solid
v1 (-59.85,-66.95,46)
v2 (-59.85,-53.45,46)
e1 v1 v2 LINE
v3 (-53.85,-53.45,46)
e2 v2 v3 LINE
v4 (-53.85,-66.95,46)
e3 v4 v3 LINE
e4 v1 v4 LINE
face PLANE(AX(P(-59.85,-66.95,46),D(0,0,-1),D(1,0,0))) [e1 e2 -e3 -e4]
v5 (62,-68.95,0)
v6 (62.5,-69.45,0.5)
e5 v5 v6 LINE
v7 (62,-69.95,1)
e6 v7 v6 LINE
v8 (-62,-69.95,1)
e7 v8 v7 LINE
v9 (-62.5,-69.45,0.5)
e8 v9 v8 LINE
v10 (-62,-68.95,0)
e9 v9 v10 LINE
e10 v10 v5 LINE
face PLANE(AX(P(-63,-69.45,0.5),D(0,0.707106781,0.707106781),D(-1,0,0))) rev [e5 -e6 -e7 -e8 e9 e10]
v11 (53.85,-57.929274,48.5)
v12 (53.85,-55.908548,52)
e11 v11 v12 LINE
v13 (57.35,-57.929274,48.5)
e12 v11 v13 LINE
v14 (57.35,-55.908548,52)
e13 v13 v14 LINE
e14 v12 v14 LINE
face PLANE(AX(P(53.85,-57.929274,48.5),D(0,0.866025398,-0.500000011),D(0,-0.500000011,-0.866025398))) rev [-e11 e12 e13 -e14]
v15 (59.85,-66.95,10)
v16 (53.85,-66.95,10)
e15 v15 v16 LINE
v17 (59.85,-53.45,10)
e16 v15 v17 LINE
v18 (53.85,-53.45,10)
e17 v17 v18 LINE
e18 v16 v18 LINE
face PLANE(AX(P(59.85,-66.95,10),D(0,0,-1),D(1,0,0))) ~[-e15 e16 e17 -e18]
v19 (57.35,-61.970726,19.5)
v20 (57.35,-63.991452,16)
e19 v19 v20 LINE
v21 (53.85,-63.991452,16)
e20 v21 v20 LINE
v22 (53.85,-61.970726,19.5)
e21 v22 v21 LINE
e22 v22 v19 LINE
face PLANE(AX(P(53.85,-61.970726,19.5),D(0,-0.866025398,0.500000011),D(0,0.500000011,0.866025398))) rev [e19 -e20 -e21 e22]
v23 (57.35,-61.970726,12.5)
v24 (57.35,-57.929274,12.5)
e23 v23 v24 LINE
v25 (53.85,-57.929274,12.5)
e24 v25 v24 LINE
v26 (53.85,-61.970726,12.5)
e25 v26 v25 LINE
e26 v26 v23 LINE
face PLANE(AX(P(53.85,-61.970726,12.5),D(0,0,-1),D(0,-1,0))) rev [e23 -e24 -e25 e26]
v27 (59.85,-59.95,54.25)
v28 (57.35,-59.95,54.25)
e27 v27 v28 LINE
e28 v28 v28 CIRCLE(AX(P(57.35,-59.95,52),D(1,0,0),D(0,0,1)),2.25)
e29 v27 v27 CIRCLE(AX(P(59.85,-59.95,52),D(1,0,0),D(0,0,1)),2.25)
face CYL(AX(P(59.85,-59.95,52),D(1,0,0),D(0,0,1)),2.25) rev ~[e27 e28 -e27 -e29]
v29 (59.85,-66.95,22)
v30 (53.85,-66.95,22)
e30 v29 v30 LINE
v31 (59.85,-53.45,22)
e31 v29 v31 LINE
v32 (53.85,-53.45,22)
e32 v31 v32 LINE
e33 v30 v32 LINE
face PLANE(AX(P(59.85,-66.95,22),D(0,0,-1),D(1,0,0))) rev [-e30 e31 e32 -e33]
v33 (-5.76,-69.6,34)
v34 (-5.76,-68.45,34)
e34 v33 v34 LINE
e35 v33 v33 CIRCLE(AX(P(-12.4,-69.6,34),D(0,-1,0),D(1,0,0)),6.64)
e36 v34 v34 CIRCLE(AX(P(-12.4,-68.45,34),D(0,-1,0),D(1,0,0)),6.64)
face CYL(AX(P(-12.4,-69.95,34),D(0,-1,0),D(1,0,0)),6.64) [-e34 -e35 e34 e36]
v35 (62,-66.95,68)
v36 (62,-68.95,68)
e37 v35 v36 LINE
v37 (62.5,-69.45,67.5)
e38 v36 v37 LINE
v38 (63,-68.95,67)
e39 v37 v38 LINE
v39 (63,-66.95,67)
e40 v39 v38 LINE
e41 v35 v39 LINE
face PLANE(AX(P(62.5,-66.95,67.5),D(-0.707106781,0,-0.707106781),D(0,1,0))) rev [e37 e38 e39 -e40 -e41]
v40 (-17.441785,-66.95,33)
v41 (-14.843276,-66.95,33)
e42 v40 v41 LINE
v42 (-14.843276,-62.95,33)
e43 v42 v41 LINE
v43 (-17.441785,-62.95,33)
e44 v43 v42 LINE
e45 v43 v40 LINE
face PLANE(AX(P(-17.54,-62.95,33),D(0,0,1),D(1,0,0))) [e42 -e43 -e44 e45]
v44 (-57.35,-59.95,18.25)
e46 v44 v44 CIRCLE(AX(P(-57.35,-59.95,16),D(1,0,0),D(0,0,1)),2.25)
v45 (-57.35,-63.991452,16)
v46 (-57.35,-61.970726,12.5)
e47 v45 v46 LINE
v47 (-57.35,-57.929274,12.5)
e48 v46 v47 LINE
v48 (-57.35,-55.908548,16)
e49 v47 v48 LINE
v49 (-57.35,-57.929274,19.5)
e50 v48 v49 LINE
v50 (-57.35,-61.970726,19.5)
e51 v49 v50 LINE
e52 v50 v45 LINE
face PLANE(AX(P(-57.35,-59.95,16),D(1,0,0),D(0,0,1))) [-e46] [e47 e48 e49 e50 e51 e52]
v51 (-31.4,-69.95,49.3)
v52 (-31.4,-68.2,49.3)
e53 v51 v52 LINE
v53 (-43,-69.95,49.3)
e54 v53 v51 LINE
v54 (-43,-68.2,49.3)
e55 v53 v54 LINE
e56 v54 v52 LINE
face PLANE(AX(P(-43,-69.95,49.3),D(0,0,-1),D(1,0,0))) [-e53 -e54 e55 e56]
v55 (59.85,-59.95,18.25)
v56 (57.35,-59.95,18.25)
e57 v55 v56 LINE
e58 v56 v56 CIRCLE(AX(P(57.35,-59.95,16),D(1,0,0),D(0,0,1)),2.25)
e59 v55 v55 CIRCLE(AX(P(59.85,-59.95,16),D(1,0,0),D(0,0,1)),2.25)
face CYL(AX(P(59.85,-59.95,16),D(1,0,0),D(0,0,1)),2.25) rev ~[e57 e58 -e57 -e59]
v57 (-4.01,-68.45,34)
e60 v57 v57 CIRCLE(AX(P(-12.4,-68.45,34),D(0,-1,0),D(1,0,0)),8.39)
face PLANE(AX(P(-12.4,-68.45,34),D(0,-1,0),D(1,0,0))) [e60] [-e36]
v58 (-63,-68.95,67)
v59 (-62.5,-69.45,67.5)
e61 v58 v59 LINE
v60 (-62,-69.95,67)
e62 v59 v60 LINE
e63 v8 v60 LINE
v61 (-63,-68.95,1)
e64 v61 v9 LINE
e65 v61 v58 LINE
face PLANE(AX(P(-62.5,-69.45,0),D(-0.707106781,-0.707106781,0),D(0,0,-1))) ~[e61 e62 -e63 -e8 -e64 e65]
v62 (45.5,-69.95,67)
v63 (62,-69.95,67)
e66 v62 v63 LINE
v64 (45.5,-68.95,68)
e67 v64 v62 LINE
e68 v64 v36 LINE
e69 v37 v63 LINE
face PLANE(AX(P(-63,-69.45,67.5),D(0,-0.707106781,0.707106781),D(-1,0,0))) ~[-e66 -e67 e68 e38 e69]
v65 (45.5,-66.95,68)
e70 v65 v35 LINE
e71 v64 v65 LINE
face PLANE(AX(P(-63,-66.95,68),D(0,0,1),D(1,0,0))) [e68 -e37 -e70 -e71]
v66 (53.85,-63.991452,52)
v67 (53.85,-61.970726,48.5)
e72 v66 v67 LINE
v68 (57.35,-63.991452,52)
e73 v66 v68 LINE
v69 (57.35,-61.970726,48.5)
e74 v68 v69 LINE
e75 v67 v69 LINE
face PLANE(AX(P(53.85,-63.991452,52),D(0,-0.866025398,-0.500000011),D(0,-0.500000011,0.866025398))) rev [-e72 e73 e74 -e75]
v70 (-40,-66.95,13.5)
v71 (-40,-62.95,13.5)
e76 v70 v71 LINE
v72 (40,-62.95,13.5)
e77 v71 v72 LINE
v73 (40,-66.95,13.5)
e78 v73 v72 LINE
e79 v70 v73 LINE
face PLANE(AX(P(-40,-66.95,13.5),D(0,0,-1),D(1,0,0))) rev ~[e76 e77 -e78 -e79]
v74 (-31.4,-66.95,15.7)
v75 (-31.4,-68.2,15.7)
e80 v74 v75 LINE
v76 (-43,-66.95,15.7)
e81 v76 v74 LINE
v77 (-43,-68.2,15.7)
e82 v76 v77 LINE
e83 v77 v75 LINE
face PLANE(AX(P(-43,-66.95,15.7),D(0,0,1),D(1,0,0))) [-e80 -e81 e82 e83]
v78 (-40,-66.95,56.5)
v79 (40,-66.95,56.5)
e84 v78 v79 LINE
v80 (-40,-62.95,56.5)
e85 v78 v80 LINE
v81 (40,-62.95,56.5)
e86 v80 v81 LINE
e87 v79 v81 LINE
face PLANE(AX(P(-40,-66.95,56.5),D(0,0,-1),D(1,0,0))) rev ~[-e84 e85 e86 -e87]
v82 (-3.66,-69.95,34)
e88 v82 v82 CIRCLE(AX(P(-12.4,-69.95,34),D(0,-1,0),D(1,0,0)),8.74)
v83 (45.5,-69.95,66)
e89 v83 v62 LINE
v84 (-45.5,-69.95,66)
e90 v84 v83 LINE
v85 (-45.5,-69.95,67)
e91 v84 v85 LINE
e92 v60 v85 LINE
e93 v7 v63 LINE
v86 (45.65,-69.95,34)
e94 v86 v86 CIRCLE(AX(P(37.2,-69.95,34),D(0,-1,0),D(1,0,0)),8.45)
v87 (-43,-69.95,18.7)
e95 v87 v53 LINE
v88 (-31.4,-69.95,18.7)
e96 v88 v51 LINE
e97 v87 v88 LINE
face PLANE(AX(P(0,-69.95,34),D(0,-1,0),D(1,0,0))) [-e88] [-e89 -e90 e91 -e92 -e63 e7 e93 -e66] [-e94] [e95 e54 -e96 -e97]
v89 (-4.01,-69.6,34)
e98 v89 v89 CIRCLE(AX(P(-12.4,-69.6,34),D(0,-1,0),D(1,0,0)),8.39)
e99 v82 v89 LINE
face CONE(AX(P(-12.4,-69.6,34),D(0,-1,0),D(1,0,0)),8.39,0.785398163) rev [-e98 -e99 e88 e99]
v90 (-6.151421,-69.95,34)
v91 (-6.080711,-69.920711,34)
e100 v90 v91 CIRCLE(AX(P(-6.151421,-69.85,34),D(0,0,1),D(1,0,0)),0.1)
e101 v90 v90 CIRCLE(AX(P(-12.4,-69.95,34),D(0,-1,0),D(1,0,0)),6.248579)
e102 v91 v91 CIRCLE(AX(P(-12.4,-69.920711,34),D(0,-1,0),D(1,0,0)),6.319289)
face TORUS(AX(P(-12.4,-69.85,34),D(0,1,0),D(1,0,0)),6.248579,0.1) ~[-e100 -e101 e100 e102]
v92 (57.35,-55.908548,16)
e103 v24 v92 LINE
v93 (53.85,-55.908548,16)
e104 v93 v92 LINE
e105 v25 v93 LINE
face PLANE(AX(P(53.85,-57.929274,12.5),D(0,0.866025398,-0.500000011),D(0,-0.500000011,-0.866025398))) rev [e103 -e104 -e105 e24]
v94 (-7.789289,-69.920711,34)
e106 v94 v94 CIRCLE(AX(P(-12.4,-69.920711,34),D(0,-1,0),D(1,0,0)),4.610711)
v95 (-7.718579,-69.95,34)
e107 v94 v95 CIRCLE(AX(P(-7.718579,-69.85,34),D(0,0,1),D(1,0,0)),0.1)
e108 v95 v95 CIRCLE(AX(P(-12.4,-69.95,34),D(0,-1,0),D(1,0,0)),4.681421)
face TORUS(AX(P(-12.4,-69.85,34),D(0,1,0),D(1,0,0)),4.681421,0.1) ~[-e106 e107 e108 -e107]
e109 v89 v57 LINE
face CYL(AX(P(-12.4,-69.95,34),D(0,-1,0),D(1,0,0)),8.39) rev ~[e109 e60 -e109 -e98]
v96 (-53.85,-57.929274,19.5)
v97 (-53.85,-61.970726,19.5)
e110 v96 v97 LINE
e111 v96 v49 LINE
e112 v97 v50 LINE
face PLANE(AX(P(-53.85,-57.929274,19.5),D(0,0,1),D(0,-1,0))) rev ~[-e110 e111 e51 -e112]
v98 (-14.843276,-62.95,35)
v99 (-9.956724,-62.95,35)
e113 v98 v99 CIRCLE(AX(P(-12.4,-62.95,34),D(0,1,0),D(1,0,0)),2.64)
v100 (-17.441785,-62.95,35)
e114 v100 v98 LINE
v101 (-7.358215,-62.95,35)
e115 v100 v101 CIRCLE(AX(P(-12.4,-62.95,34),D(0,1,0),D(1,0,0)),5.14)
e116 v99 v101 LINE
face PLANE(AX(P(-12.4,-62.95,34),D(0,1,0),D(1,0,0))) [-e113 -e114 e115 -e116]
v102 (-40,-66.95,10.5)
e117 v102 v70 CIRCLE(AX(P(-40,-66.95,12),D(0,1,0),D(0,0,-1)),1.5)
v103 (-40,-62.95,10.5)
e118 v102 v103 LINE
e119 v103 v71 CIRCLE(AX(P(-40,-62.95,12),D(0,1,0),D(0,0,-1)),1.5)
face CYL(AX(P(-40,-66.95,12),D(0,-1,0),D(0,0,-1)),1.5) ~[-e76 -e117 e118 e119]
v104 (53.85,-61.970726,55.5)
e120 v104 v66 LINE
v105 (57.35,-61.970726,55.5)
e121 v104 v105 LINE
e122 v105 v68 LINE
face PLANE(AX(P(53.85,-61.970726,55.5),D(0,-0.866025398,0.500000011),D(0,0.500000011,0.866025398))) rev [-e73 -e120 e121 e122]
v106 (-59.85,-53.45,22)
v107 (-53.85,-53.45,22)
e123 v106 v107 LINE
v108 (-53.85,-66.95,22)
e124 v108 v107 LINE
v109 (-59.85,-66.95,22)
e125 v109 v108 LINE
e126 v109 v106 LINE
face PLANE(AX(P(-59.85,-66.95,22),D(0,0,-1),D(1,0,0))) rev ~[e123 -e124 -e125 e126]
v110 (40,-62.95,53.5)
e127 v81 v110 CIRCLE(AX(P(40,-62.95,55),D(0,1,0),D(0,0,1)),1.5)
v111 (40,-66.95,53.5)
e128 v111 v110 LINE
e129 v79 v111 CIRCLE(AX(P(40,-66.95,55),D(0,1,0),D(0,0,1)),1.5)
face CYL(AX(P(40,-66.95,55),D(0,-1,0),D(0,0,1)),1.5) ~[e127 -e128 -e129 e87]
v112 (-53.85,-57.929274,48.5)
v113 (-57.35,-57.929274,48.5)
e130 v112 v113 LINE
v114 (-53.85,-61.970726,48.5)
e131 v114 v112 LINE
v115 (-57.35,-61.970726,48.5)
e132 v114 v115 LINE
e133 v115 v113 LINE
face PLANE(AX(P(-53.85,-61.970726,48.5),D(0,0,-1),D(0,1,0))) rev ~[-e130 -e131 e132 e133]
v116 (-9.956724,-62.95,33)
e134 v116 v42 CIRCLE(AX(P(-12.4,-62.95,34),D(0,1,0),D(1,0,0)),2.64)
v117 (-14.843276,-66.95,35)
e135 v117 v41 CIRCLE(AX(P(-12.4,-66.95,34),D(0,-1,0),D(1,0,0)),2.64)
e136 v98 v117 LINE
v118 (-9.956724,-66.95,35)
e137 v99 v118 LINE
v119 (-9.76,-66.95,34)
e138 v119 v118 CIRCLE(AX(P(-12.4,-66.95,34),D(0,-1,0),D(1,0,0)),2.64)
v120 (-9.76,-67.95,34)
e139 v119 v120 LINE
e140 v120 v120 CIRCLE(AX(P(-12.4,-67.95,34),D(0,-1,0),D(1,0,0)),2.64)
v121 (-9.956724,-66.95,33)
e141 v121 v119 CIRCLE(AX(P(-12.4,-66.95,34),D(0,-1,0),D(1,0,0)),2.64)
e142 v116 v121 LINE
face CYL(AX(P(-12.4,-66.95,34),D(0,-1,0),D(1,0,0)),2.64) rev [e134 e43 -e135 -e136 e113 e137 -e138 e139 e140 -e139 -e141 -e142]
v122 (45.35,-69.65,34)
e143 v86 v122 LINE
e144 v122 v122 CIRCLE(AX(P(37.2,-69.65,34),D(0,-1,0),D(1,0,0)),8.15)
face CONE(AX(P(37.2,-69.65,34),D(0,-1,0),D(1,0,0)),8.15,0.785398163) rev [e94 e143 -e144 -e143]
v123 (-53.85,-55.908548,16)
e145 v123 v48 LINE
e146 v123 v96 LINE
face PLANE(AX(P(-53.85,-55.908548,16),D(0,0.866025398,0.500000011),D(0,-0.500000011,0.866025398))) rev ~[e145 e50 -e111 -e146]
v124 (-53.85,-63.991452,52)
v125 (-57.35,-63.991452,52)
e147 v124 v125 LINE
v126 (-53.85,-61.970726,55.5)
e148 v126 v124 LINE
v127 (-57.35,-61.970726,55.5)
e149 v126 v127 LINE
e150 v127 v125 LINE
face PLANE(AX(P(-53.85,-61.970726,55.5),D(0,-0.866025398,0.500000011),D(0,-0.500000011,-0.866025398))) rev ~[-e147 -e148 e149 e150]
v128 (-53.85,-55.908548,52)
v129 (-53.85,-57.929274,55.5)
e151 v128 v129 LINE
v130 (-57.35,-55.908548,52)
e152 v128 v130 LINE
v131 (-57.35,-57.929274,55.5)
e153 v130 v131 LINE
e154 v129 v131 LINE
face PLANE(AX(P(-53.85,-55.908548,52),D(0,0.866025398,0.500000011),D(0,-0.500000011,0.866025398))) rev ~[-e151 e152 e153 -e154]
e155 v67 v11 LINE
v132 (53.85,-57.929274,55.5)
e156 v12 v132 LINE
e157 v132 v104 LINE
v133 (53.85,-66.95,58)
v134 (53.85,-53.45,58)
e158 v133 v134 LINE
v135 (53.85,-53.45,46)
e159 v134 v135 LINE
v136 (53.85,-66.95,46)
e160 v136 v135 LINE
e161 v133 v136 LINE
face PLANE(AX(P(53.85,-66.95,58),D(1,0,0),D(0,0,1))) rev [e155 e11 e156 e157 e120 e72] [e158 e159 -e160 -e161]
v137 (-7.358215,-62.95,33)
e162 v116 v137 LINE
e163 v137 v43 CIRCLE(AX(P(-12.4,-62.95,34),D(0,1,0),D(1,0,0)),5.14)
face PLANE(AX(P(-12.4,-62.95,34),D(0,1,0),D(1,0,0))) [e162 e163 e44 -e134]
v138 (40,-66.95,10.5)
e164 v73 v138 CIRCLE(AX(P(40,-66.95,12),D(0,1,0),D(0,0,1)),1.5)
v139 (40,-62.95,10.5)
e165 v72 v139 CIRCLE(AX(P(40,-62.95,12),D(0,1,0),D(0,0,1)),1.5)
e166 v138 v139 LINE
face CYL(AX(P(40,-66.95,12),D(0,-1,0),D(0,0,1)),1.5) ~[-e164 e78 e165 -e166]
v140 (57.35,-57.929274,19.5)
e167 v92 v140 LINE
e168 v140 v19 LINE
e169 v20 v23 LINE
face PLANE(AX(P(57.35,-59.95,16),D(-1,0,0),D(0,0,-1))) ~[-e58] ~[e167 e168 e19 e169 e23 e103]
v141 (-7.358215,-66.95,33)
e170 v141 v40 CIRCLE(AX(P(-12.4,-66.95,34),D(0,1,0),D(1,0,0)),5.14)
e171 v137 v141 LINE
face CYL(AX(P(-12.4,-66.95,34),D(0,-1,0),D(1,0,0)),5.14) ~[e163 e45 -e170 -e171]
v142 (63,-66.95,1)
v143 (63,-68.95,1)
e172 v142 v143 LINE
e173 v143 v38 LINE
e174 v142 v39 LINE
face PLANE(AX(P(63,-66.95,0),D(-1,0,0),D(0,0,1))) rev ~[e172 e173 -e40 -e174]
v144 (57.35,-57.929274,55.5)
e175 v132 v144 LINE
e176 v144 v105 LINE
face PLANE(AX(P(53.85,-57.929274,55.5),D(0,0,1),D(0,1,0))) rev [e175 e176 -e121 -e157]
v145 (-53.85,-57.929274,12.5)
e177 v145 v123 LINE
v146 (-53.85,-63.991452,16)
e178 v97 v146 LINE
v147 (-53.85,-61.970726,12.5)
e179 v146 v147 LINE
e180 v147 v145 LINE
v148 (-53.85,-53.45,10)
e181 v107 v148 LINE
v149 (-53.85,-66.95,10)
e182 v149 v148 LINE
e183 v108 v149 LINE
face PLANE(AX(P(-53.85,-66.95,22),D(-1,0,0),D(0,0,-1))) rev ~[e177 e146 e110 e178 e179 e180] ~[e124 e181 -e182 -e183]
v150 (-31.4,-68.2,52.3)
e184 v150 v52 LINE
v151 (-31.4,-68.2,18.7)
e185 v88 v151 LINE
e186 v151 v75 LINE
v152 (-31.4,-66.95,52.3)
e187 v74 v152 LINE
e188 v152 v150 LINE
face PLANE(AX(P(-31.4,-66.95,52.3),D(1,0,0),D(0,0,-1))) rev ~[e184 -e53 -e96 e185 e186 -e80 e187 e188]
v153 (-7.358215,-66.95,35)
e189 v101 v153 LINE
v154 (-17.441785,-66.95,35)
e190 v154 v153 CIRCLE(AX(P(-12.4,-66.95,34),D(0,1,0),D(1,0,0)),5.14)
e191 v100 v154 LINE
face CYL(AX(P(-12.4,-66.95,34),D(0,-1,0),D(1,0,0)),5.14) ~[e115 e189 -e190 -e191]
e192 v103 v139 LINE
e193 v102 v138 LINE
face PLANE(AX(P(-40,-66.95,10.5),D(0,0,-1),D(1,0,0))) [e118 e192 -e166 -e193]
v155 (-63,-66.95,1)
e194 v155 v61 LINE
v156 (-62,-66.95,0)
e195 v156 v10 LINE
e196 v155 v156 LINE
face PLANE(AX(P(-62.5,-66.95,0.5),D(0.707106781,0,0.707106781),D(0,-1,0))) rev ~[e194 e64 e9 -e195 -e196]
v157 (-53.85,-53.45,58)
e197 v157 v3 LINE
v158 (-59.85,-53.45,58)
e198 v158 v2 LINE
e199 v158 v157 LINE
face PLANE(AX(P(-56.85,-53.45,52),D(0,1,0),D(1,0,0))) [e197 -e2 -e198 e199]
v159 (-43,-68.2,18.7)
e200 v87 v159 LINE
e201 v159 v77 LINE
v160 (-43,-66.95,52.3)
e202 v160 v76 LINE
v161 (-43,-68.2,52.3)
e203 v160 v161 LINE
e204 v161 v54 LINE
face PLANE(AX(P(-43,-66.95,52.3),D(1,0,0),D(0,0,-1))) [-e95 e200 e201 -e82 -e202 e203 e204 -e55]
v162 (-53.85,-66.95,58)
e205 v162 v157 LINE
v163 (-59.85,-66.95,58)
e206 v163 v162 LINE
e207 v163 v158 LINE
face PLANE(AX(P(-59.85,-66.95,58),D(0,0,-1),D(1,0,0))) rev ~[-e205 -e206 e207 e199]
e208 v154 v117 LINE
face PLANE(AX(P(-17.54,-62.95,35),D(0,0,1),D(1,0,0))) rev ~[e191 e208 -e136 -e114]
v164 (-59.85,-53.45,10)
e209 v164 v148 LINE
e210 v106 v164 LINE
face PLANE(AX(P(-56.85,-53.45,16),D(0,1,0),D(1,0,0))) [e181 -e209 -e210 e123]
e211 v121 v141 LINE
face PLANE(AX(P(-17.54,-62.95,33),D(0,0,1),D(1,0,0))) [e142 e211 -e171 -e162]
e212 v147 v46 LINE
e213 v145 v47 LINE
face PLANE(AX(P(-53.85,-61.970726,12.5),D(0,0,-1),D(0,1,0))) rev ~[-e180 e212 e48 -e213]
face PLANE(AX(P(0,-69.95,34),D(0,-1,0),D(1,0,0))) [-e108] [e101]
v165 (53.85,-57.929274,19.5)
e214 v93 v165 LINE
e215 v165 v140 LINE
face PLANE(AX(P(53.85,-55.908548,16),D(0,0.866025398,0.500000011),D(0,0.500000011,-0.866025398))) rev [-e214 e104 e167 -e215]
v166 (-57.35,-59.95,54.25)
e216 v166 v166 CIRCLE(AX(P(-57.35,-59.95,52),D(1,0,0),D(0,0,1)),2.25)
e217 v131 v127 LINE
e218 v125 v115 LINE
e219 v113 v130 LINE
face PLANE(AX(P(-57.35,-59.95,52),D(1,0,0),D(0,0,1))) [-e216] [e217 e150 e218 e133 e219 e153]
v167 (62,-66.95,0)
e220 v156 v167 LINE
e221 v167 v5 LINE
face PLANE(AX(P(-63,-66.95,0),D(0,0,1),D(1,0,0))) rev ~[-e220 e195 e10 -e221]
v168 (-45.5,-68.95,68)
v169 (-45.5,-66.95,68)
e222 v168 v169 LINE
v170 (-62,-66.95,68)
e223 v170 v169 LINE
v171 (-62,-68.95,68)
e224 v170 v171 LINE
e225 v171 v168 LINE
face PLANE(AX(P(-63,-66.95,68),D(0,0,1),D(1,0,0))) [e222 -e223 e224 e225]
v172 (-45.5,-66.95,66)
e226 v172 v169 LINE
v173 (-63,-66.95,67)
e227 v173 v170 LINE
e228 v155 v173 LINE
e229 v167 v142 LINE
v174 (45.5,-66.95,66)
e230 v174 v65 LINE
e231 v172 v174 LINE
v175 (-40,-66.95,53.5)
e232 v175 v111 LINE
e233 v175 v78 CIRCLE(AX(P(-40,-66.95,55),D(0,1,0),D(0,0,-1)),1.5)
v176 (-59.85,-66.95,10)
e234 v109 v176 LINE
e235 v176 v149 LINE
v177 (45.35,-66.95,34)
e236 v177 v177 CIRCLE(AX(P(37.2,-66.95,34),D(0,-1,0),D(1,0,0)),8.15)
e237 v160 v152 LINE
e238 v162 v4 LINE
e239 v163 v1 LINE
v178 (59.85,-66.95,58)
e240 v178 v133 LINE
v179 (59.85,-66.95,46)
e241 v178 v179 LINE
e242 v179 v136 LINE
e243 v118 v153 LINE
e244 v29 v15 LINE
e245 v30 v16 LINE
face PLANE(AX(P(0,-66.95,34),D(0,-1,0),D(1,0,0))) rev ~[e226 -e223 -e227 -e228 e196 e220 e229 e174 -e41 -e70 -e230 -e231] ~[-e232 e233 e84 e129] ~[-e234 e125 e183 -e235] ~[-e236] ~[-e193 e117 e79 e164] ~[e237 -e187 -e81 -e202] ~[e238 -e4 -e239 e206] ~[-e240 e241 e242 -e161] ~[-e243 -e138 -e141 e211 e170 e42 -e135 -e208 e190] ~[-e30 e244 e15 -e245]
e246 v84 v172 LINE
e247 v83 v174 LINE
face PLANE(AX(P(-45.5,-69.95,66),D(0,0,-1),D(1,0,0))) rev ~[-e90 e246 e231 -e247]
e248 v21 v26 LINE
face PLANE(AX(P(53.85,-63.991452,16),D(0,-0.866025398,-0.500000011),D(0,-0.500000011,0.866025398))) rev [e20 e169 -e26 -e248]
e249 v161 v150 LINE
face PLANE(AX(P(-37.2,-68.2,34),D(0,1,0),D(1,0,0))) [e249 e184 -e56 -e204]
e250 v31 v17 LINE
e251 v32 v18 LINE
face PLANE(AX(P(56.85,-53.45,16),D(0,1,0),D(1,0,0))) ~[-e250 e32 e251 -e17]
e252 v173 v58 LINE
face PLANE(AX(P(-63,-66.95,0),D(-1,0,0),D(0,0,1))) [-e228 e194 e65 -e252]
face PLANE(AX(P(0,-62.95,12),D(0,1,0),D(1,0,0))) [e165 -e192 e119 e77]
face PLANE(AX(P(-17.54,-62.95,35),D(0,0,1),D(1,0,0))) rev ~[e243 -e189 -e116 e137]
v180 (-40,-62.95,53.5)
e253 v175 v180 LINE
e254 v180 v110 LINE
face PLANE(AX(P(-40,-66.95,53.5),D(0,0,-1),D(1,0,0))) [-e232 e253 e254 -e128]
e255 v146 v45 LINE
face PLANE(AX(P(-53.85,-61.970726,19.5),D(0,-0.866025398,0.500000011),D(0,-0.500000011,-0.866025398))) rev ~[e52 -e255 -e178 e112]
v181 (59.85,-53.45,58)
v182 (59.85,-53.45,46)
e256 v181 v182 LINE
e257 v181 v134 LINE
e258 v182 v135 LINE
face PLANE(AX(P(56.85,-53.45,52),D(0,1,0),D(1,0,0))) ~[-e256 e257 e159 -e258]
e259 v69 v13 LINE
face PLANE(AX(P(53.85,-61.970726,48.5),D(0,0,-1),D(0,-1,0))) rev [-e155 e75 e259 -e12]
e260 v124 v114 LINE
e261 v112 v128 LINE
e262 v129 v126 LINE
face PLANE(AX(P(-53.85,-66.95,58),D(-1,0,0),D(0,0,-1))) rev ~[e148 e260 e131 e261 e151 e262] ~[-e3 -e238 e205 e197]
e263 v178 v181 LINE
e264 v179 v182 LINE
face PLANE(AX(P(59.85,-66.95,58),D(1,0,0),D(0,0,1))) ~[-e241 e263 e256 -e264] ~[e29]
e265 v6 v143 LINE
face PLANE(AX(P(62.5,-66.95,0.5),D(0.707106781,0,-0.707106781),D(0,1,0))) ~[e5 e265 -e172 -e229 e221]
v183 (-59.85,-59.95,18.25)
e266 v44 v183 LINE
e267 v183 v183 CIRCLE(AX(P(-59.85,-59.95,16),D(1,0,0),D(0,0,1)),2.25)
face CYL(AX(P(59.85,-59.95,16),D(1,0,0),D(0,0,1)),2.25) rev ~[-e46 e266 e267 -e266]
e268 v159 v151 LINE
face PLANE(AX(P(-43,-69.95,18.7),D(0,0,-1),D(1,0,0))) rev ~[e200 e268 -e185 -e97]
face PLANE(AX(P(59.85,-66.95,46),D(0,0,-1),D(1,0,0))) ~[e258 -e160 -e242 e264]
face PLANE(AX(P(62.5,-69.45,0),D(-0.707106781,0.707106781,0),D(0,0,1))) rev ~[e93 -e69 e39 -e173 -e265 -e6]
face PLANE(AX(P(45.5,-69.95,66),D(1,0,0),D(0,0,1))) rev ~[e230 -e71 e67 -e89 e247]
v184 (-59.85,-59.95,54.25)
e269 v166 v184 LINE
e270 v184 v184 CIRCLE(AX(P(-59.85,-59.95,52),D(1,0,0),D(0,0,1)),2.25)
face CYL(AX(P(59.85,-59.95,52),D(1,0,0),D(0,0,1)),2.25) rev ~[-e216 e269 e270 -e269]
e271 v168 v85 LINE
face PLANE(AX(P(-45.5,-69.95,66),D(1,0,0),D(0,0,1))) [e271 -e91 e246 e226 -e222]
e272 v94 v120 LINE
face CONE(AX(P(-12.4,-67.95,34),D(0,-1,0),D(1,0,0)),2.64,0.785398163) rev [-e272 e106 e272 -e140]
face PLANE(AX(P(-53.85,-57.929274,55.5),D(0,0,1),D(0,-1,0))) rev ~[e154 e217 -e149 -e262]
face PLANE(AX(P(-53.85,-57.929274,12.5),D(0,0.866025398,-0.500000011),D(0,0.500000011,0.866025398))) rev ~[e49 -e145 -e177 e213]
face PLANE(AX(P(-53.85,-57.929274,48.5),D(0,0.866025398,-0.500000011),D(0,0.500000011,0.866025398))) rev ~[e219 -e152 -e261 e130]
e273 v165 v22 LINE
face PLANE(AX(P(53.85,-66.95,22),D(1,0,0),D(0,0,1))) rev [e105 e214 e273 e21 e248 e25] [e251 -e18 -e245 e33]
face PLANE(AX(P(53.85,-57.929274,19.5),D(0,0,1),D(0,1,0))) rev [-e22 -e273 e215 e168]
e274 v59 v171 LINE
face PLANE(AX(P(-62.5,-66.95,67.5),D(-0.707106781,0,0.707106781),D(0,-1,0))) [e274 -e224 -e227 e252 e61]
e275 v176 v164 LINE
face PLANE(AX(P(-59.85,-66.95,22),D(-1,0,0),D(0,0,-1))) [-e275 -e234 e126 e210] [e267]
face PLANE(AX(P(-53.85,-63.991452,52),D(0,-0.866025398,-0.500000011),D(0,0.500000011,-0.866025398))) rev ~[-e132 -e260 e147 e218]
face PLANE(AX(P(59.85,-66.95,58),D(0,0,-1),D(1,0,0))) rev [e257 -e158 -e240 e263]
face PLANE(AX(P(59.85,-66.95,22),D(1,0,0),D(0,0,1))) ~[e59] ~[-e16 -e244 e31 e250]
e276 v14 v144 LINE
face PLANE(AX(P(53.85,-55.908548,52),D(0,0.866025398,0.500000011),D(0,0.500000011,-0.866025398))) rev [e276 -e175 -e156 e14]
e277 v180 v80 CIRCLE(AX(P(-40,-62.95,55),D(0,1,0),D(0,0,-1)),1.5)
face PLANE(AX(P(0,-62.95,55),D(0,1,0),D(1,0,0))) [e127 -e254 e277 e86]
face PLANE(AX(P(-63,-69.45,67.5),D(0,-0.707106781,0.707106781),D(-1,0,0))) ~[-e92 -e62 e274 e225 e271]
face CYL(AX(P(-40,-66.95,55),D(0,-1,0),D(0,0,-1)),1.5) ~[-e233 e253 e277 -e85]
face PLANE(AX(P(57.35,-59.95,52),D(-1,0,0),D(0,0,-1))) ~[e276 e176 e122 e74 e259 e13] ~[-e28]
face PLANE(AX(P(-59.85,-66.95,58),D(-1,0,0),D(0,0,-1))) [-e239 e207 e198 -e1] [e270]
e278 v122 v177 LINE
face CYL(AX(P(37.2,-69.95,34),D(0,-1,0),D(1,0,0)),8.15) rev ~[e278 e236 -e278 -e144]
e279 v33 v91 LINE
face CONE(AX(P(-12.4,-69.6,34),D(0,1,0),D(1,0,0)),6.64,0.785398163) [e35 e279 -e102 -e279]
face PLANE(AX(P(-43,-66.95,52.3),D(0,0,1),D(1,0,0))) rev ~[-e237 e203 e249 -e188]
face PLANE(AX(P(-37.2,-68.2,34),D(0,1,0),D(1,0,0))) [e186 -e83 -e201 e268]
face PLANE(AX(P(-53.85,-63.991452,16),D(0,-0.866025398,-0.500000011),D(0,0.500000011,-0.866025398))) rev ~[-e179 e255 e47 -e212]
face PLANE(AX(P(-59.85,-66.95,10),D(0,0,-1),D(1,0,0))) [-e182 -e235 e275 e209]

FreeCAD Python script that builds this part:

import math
import FreeCAD as App
import Part
import Sketcher

V = App.Vector
Q = App.Units.Quantity


def edges_at(feature, points):
    """Names of the edges that pass closest to the given points."""
    edges = feature.Shape.Edges
    near = lambda p: min(range(len(edges)), key=lambda i: edges[i].distToShape(Part.Vertex(*p))[0])
    return sorted({f"Edge{near(p) + 1}" for p in points})

doc = App.newDocument("Part")
body = doc.addObject("PartDesign::Body", "Body")

# Sketch on XZ plane
sketch1 = doc.addObject("Sketcher::SketchObject", "Sketch")
body.addObject(sketch1)
sketch1.AttachmentSupport = (doc.XZ_Plane, [""])
sketch1.MapMode = "FlatFace"
sketch1.addGeometry([
    Part.LineSegment(V(-63, 68, 0), V(-63, 0, 0)),
    Part.LineSegment(V(-63, 0, 0), V(63, 0, 0)),
    Part.LineSegment(V(63, 0, 0), V(63, 68, 0)),
    Part.LineSegment(V(63, 68, 0), V(-63, 68, 0)),
], False)
sketch1.addConstraint([
    Sketcher.Constraint("Coincident", 0, 2, 1, 1),
    Sketcher.Constraint("Coincident", 1, 2, 2, 1),
    Sketcher.Constraint("Coincident", 2, 2, 3, 1),
    Sketcher.Constraint("Coincident", 3, 2, 0, 1),
    Sketcher.Constraint("Vertical", 0),
    Sketcher.Constraint("Horizontal", 1),
    Sketcher.Constraint("Vertical", 2),
    Sketcher.Constraint("Horizontal", 3),
    Sketcher.Constraint("Symmetric", 0, 2, 1, 2, -1, 1),
    Sketcher.Constraint("DistanceX", 1, 1, 1, 2, Q("126 mm")),
    Sketcher.Constraint("DistanceY", 0, 2, 0, 1, Q("68 mm")),
])
pad1 = doc.addObject("PartDesign::Pad", "Pad")
body.addObject(pad1)
pad1.Profile = sketch1
pad1.Length = 3

# Sketch on XZ plane
sketch2 = doc.addObject("Sketcher::SketchObject", "Sketch001")
body.addObject(sketch2)
sketch2.AttachmentSupport = (doc.XZ_Plane, [""])
sketch2.MapMode = "FlatFace"
sketch2.addGeometry([
    Part.LineSegment(V(-60, 10, 0), V(-60, 22, 0)),  # 0
    Part.LineSegment(V(-60, 22, 0), V(-54, 22, 0)),  # 1
    Part.LineSegment(V(-54, 22, 0), V(-54, 10, 0)),  # 2
    Part.LineSegment(V(-54, 10, 0), V(-60, 10, 0)),  # 3
    Part.LineSegment(V(-60, 46, 0), V(-60, 58, 0)),  # 4
    Part.LineSegment(V(-60, 58, 0), V(-54, 58, 0)),  # 5
    Part.LineSegment(V(-54, 58, 0), V(-54, 46, 0)),  # 6
    Part.LineSegment(V(-54, 46, 0), V(-60, 46, 0)),  # 7
], False)
sketch2.addConstraint([
    Sketcher.Constraint("Coincident", 0, 2, 1, 1),
    Sketcher.Constraint("Coincident", 1, 2, 2, 1),
    Sketcher.Constraint("Coincident", 2, 2, 3, 1),
    Sketcher.Constraint("Coincident", 3, 2, 0, 1),
    Sketcher.Constraint("Coincident", 4, 2, 5, 1),
    Sketcher.Constraint("Coincident", 5, 2, 6, 1),
    Sketcher.Constraint("Coincident", 6, 2, 7, 1),
    Sketcher.Constraint("Coincident", 7, 2, 4, 1),
    Sketcher.Constraint("Vertical", 0),
    Sketcher.Constraint("Horizontal", 1),
    Sketcher.Constraint("Vertical", 2),
    Sketcher.Constraint("Horizontal", 3),
    Sketcher.Constraint("Vertical", 4),
    Sketcher.Constraint("Horizontal", 5),
    Sketcher.Constraint("Vertical", 6),
    Sketcher.Constraint("Horizontal", 7),
    Sketcher.Constraint("Vertical", 3, 2, 4, 2),
    Sketcher.Constraint("Vertical", 2, 2, 5, 2),
    Sketcher.Constraint("Equal", 2, 4),
    Sketcher.Constraint("DistanceX", 1, 1, 1, 2, Q("6 mm")),
    Sketcher.Constraint("DistanceY", 0, 1, 0, 2, Q("12 mm")),
    Sketcher.Constraint("DistanceY", -1, 1, 0, 2, Q("22 mm")),
    Sketcher.Constraint("DistanceY", -1, 1, 4, 2, Q("58 mm")),
    Sketcher.Constraint("DistanceX", 0, 2, -1, 1, Q("59.85 mm")),
])
pad2 = doc.addObject("PartDesign::Pad", "Pad001")
body.addObject(pad2)
pad2.Profile = sketch2
pad2.Length = 13.5
pad2.Reversed = True
doc.recompute()

mirrored = doc.addObject("PartDesign::Mirrored", "Mirrored")
body.addObject(mirrored)
mirrored.Originals = [pad2]
mirrored.MirrorPlane = (doc.YZ_Plane, [""])
body.Tip = mirrored

# Sketch on YZ plane
sketch3 = doc.addObject("Sketcher::SketchObject", "Sketch002")
body.addObject(sketch3)
sketch3.AttachmentSupport = (doc.YZ_Plane, [""])
sketch3.MapMode = "FlatFace"
sketch3.AttachmentOffset = App.Placement(V(0, 0, 59.85), App.Rotation())
sketch3.addGeometry([
    Part.Circle(V(7, 16, 0), V(0, 0, 1), 2.2),
    Part.Circle(V(7, 52, 0), V(0, 0, 1), 2.2),
], False)
sketch3.addConstraint([
    Sketcher.Constraint("Equal", 0, 1),
    Sketcher.Constraint("Vertical", 0, 3, 1, 3),
    Sketcher.Constraint("Diameter", 0, Q("4.5 mm")),
    Sketcher.Constraint("DistanceX", -1, 1, 0, 3, Q("7 mm")),
    Sketcher.Constraint("DistanceY", -1, 1, 0, 3, Q("16 mm")),
    Sketcher.Constraint("DistanceY", -1, 1, 1, 3, Q("52 mm")),
])
pocket1 = doc.addObject("PartDesign::Pocket", "Pocket")
body.addObject(pocket1)
pocket1.Profile = sketch3
pocket1.Type = "ThroughAll"

# Sketch on YZ plane
sketch4 = doc.addObject("Sketcher::SketchObject", "Sketch003")
body.addObject(sketch4)
sketch4.AttachmentSupport = (doc.YZ_Plane, [""])
sketch4.MapMode = "FlatFace"
sketch4.AttachmentOffset = App.Placement(V(0, 0, -53.85), App.Rotation())
sketch4.addGeometry([
    Part.LineSegment(V(9, 19.5, 0), V(5, 19.5, 0)),  # 0
    Part.LineSegment(V(5, 19.5, 0), V(3, 16, 0)),  # 1
    Part.LineSegment(V(3, 16, 0), V(5, 12.5, 0)),  # 2
    Part.LineSegment(V(5, 12.5, 0), V(9, 12.5, 0)),  # 3
    Part.LineSegment(V(9, 12.5, 0), V(11, 16, 0)),  # 4
    Part.LineSegment(V(11, 16, 0), V(9, 19.5, 0)),  # 5
    Part.LineSegment(V(9, 55.5, 0), V(5, 55.5, 0)),  # 6
    Part.LineSegment(V(5, 55.5, 0), V(3, 52, 0)),  # 7
    Part.LineSegment(V(3, 52, 0), V(5, 48.5, 0)),  # 8
    Part.LineSegment(V(5, 48.5, 0), V(9, 48.5, 0)),  # 9
    Part.LineSegment(V(9, 48.5, 0), V(11, 52, 0)),  # 10
    Part.LineSegment(V(11, 52, 0), V(9, 55.5, 0)),  # 11
], False)
sketch4.addConstraint([
    Sketcher.Constraint("Coincident", 0, 2, 1, 1),
    Sketcher.Constraint("Coincident", 1, 2, 2, 1),
    Sketcher.Constraint("Coincident", 2, 2, 3, 1),
    Sketcher.Constraint("Coincident", 3, 2, 4, 1),
    Sketcher.Constraint("Coincident", 4, 2, 5, 1),
    Sketcher.Constraint("Coincident", 5, 2, 0, 1),
    Sketcher.Constraint("Coincident", 6, 2, 7, 1),
    Sketcher.Constraint("Coincident", 7, 2, 8, 1),
    Sketcher.Constraint("Coincident", 8, 2, 9, 1),
    Sketcher.Constraint("Coincident", 9, 2, 10, 1),
    Sketcher.Constraint("Coincident", 10, 2, 11, 1),
    Sketcher.Constraint("Coincident", 11, 2, 6, 1),
    Sketcher.Constraint("Horizontal", 0),
    Sketcher.Constraint("Horizontal", 3),
    Sketcher.Constraint("Horizontal", 6),
    Sketcher.Constraint("Horizontal", 9),
    Sketcher.Constraint("Parallel", 1, 4),
    Sketcher.Constraint("Parallel", 2, 5),
    Sketcher.Constraint("Parallel", 4, 7),
    Sketcher.Constraint("Parallel", 5, 8),
    Sketcher.Constraint("Parallel", 7, 10),
    Sketcher.Constraint("Parallel", 8, 11),
    Sketcher.Constraint("Horizontal", 1, 2, 4, 2),
    Sketcher.Constraint("Horizontal", 7, 2, 10, 2),
    Sketcher.Constraint("Vertical", 0, 2, 2, 2),
    Sketcher.Constraint("Vertical", 3, 2, 5, 2),
    Sketcher.Constraint("Vertical", 2, 2, 6, 2),
    Sketcher.Constraint("Vertical", 1, 2, 7, 2),
    Sketcher.Constraint("Vertical", 6, 2, 8, 2),
    Sketcher.Constraint("Vertical", 5, 2, 9, 2),
    Sketcher.Constraint("Angle", 1, Q("-120.000001 deg")),
    Sketcher.Constraint("DistanceY", -1, 1, 1, 2, Q("16 mm")),
    Sketcher.Constraint("DistanceY", -1, 1, 7, 2, Q("52 mm")),
    Sketcher.Constraint("DistanceY", 2, 2, 0, 2, Q("7 mm")),
    Sketcher.Constraint("DistanceX", 0, 2, 0, 1, Q("4.041452 mm")),
    Sketcher.Constraint("DistanceX", -1, 1, 1, 2, Q("2.958548 mm")),
])
pocket2 = doc.addObject("PartDesign::Pocket", "Pocket001")
body.addObject(pocket2)
pocket2.Profile = sketch4
pocket2.Length = 3.5
doc.recompute()

chamfer = doc.addObject("PartDesign::Chamfer", "Chamfer")
body.addObject(chamfer)
chamfer.Base = (pocket2, edges_at(pocket2, [
    (0, -3, 68),
    (63, -3, 34),
    (0, -3, 0),
    (-63, -3, 34),
]))
chamfer.Size = 1
doc.recompute()

chamfer2 = doc.addObject("PartDesign::Chamfer", "Chamfer001")
body.addObject(chamfer2)
chamfer2.Base = (chamfer, edges_at(chamfer, [(-63, -1, 68), (63, -1, 68)]))
chamfer2.Size = 1
doc.recompute()

chamfer3 = doc.addObject("PartDesign::Chamfer", "Chamfer002")
body.addObject(chamfer3)
chamfer3.Base = (chamfer2, edges_at(chamfer2, [(63, -1, 0), (-63, -1, 0)]))
chamfer3.Size = 1
doc.recompute()

mirrored2 = doc.addObject("PartDesign::Mirrored", "Mirrored001")
body.addObject(mirrored2)
mirrored2.Originals = [pocket2]
mirrored2.MirrorPlane = (doc.YZ_Plane, [""])
body.Tip = mirrored2

# Sketch on XZ plane
sketch5 = doc.addObject("Sketcher::SketchObject", "Sketch004")
body.addObject(sketch5)
sketch5.AttachmentSupport = (doc.XZ_Plane, [""])
sketch5.MapMode = "FlatFace"
sketch5.AttachmentOffset = App.Placement(V(0, 0, 3), App.Rotation())
sketch5.addGeometry([
    Part.Circle(V(-12.4, 34, 0), V(0, 0, 1), 2.6),  # 0
    Part.Circle(V(37.2, 34, 0), V(0, 0, 1), 8.2),  # 1
    Part.LineSegment(V(-40.7, 43.6, 0), V(-40.7, 24.4, 0)),  # 2
    Part.LineSegment(V(-40.7, 24.4, 0), V(-33.7, 24.4, 0)),  # 3
    Part.LineSegment(V(-33.7, 24.4, 0), V(-33.7, 43.6, 0)),  # 4
    Part.LineSegment(V(-33.7, 43.6, 0), V(-40.7, 43.6, 0)),  # 5
], False)
sketch5.addConstraint([
    Sketcher.Constraint("Coincident", 2, 2, 3, 1),
    Sketcher.Constraint("Coincident", 3, 2, 4, 1),
    Sketcher.Constraint("Coincident", 4, 2, 5, 1),
    Sketcher.Constraint("Coincident", 5, 2, 2, 1),
    Sketcher.Constraint("Vertical", 2),
    Sketcher.Constraint("Horizontal", 3),
    Sketcher.Constraint("Vertical", 4),
    Sketcher.Constraint("Horizontal", 5),
    Sketcher.Constraint("Horizontal", 0, 3, 1, 3),
    Sketcher.Constraint("Diameter", 1, Q("16.3 mm")),
    Sketcher.Constraint("Diameter", 0, Q("5.28 mm")),
    Sketcher.Constraint("DistanceY", -1, 1, 0, 3, Q("34 mm")),
    Sketcher.Constraint("DistanceX", 3, 1, 3, 2, Q("7.05 mm")),
    Sketcher.Constraint("DistanceY", 2, 2, 2, 1, Q("19.25 mm")),
    Sketcher.Constraint("DistanceX", 0, 3, -1, 1, Q("12.4 mm")),
    Sketcher.Constraint("DistanceX", -1, 1, 1, 3, Q("37.2 mm")),
    Sketcher.Constraint("DistanceX", 2, 2, -1, 1, Q("40.725 mm")),
    Sketcher.Constraint("DistanceY", -1, 1, 2, 2, Q("24.375 mm")),
])
pocket3 = doc.addObject("PartDesign::Pocket", "Pocket002")
body.addObject(pocket3)
pocket3.Profile = sketch5
pocket3.Type = "ThroughAll"

# Sketch on XZ plane
sketch6 = doc.addObject("Sketcher::SketchObject", "Sketch005")
body.addObject(sketch6)
sketch6.AttachmentSupport = (doc.XZ_Plane, [""])
sketch6.MapMode = "FlatFace"
sketch6.addGeometry([
    Part.LineSegment(V(-34, 20, 0), V(-41, 20, 0)),
    Part.LineSegment(V(-41, 20, 0), V(-41, 48, 0)),
    Part.LineSegment(V(-41, 48, 0), V(-34, 48, 0)),
    Part.LineSegment(V(-34, 48, 0), V(-34, 20, 0)),
], False)
sketch6.addConstraint([
    Sketcher.Constraint("Coincident", 0, 2, 1, 1),
    Sketcher.Constraint("Coincident", 1, 2, 2, 1),
    Sketcher.Constraint("Coincident", 2, 2, 3, 1),
    Sketcher.Constraint("Coincident", 3, 2, 0, 1),
    Sketcher.Constraint("Horizontal", 0),
    Sketcher.Constraint("Vertical", 1),
    Sketcher.Constraint("Horizontal", 2),
    Sketcher.Constraint("Vertical", 3),
    Sketcher.Constraint("DistanceX", 0, 2, 0, 1, Q("7.05 mm")),
    Sketcher.Constraint("DistanceY", 1, 1, 1, 2, Q("27.25 mm")),
    Sketcher.Constraint("DistanceX", 0, 2, -1, 1, Q("40.725 mm")),
    Sketcher.Constraint("DistanceY", -1, 1, 0, 2, Q("20.375 mm")),
])
pocket4 = doc.addObject("PartDesign::Pocket", "Pocket003")
body.addObject(pocket4)
pocket4.Profile = sketch6
pocket4.Length = 1
pocket4.Reversed = True
doc.recompute()

chamfer4 = doc.addObject("PartDesign::Chamfer", "Chamfer003")
body.addObject(chamfer4)
chamfer4.Base = (pocket4, edges_at(pocket4, [(-15.04, -3, 34)]))
chamfer4.Size = 2

# Sketch on XZ plane
sketch7 = doc.addObject("Sketcher::SketchObject", "Sketch006")
body.addObject(sketch7)
sketch7.AttachmentSupport = (doc.XZ_Plane, [""])
sketch7.MapMode = "FlatFace"
sketch7.AttachmentOffset = App.Placement(V(0, 0, 3), App.Rotation())
sketch7.addGeometry([
    Part.Circle(V(-12, 34, 0), V(0, 0, 1), 8),
    Part.Circle(V(-12, 34, 0), V(0, 0, 1), 7),
], False)
sketch7.addConstraint([
    Sketcher.Constraint("Coincident", 1, 3, 0, 3),
    Sketcher.Constraint("Diameter", 0, Q("16.78 mm")),
    Sketcher.Constraint("Diameter", 1, Q("13.28 mm")),
    Sketcher.Constraint("DistanceY", -1, 1, 0, 3, Q("34 mm")),
    Sketcher.Constraint("DistanceX", 0, 3, -1, 1, Q("12.4 mm")),
])
pocket5 = doc.addObject("PartDesign::Pocket", "Pocket004")
body.addObject(pocket5)
pocket5.Profile = sketch7
pocket5.Length = 1.5
doc.recompute()

chamfer5 = doc.addObject("PartDesign::Chamfer", "Chamfer004")
body.addObject(chamfer5)
chamfer5.Base = (pocket5, edges_at(pocket5, [(-19.04, -3, 34), (-20.79, -3, 34)]))
chamfer5.Size = 0.35
doc.recompute()

chamfer6 = doc.addObject("PartDesign::Chamfer", "Chamfer005")
body.addObject(chamfer6)
chamfer6.Base = (chamfer5, edges_at(chamfer5, [
    (-37.2, -3, 24.375),
    (-40.725, -3, 34),
    (-33.675, -3, 34),
    (-37.2, -3, 43.625),
    (29.05, -3, 34),
]))
chamfer6.Size = 0.3

# Sketch on XZ plane
sketch8 = doc.addObject("Sketcher::SketchObject", "Sketch007")
body.addObject(sketch8)
sketch8.AttachmentSupport = (doc.XZ_Plane, [""])
sketch8.MapMode = "FlatFace"
sketch8.addGeometry([
    Part.Circle(V(-12.4, 34, 0), V(0, 0, 1), 5.1),
    Part.Circle(V(-12.4, 34, 0), V(0, 0, 1), 2.6),
], False)
sketch8.addConstraint([
    Sketcher.Constraint("Coincident", 1, 3, 0, 3),
    Sketcher.Constraint("Diameter", 0, Q("10.28 mm")),
    Sketcher.Constraint("Diameter", 1, Q("5.28 mm")),
    Sketcher.Constraint("DistanceY", -1, 1, 0, 3, Q("34 mm")),
    Sketcher.Constraint("DistanceX", 0, 3, -1, 1, Q("12.4 mm")),
])
pad3 = doc.addObject("PartDesign::Pad", "Pad002")
body.addObject(pad3)
pad3.Profile = sketch8
pad3.Length = 4
pad3.Reversed = True

# Sketch on XZ plane
sketch9 = doc.addObject("Sketcher::SketchObject", "Sketch008")
body.addObject(sketch9)
sketch9.AttachmentSupport = (doc.XZ_Plane, [""])
sketch9.MapMode = "FlatFace"
sketch9.AttachmentOffset = App.Placement(V(0, 0, -4), App.Rotation())
sketch9.addGeometry([
    Part.LineSegment(V(-17.5, 33, 0), V(-17.5, 35, 0)),
    Part.LineSegment(V(-17.5, 35, 0), V(-7.3, 35, 0)),
    Part.LineSegment(V(-7.3, 35, 0), V(-7.3, 33, 0)),
    Part.LineSegment(V(-7.3, 33, 0), V(-17.5, 33, 0)),
], False)
sketch9.addConstraint([
    Sketcher.Constraint("Coincident", 0, 2, 1, 1),
    Sketcher.Constraint("Coincident", 1, 2, 2, 1),
    Sketcher.Constraint("Coincident", 2, 2, 3, 1),
    Sketcher.Constraint("Coincident", 3, 2, 0, 1),
    Sketcher.Constraint("Vertical", 0),
    Sketcher.Constraint("Horizontal", 1),
    Sketcher.Constraint("Vertical", 2),
    Sketcher.Constraint("Horizontal", 3),
    Sketcher.Constraint("DistanceY", 0, 1, 0, 2, Q("2 mm")),
    Sketcher.Constraint("DistanceY", -1, 1, 0, 2, Q("35 mm")),
    Sketcher.Constraint("DistanceX", 1, 1, 1, 2, Q("10.28 mm")),
    Sketcher.Constraint("DistanceX", 0, 2, -1, 1, Q("17.54 mm")),
])
pocket6 = doc.addObject("PartDesign::Pocket", "Pocket005")
body.addObject(pocket6)
pocket6.Profile = sketch9
pocket6.Length = 4
pocket6.Reversed = True

# Sketch on XZ plane
sketch10 = doc.addObject("Sketcher::SketchObject", "Sketch009")
body.addObject(sketch10)
sketch10.AttachmentSupport = (doc.XZ_Plane, [""])
sketch10.MapMode = "FlatFace"
sketch10.addGeometry([
    Part.ArcOfCircle(Part.Circle(V(-40, 55, 0), V(0, 0, 1), 1.5), math.radians(90), math.radians(270)),  # 0
    Part.LineSegment(V(-40, 56.5, 0), V(40, 56.5, 0)),  # 1
    Part.ArcOfCircle(Part.Circle(V(40, 55, 0), V(0, 0, 1), 1.5), math.radians(-90), math.radians(90)),  # 2
    Part.LineSegment(V(40, 53.5, 0), V(-40, 53.5, 0)),  # 3
    Part.ArcOfCircle(Part.Circle(V(-40, 12, 0), V(0, 0, 1), 1.5), math.radians(90), math.radians(270)),  # 4
    Part.LineSegment(V(-40, 13.5, 0), V(40, 13.5, 0)),  # 5
    Part.ArcOfCircle(Part.Circle(V(40, 12, 0), V(0, 0, 1), 1.5), math.radians(-90), math.radians(90)),  # 6
    Part.LineSegment(V(40, 10.5, 0), V(-40, 10.5, 0)),  # 7
], False)
sketch10.addConstraint([
    Sketcher.Constraint("Tangent", 0, 1, 1, 1),
    Sketcher.Constraint("Tangent", 1, 2, 2, 2),
    Sketcher.Constraint("Tangent", 2, 1, 3, 1),
    Sketcher.Constraint("Tangent", 3, 2, 0, 2),
    Sketcher.Constraint("Tangent", 4, 1, 5, 1),
    Sketcher.Constraint("Tangent", 5, 2, 6, 2),
    Sketcher.Constraint("Tangent", 6, 1, 7, 1),
    Sketcher.Constraint("Tangent", 7, 2, 4, 2),
    Sketcher.Constraint("Horizontal", 1),
    Sketcher.Constraint("Horizontal", 3),
    Sketcher.Constraint("Horizontal", 5),
    Sketcher.Constraint("Horizontal", 7),
    Sketcher.Constraint("Equal", 2, 4),
    Sketcher.Constraint("Vertical", 0, 3, 4, 3),
    Sketcher.Constraint("Vertical", 2, 3, 6, 3),
    Sketcher.Constraint("Radius", 0, Q("1.5 mm")),
    Sketcher.Constraint("DistanceX", 1, 1, 1, 2, Q("80 mm")),
    Sketcher.Constraint("DistanceX", 0, 3, -1, 1, Q("40 mm")),
    Sketcher.Constraint("DistanceY", -1, 1, 0, 3, Q("55 mm")),
    Sketcher.Constraint("DistanceY", -1, 1, 4, 3, Q("12 mm")),
])
pad4 = doc.addObject("PartDesign::Pad", "Pad003")
body.addObject(pad4)
pad4.Profile = sketch10
pad4.Length = 4
pad4.Reversed = True
doc.recompute()

fillet = doc.addObject("PartDesign::Fillet", "Fillet")
body.addObject(fillet)
fillet.Base = (pad4, edges_at(pad4, [(-18.69, -3, 34), (-17.04, -3, 34)]))
fillet.Radius = 0.1

# Sketch on XZ plane
sketch11 = doc.addObject("Sketcher::SketchObject", "Sketch010")
body.addObject(sketch11)
sketch11.AttachmentSupport = (doc.XZ_Plane, [""])
sketch11.MapMode = "FlatFace"
sketch11.AttachmentOffset = App.Placement(V(0, 0, 3), App.Rotation())
sketch11.addGeometry([
    Part.LineSegment(V(-45.5, 68, 0), V(-45.5, 66, 0)),
    Part.LineSegment(V(-45.5, 66, 0), V(45.5, 66, 0)),
    Part.LineSegment(V(45.5, 66, 0), V(45.5, 68, 0)),
    Part.LineSegment(V(45.5, 68, 0), V(-45.5, 68, 0)),
], False)
sketch11.addConstraint([
    Sketcher.Constraint("Coincident", 0, 2, 1, 1),
    Sketcher.Constraint("Coincident", 1, 2, 2, 1),
    Sketcher.Constraint("Coincident", 2, 2, 3, 1),
    Sketcher.Constraint("Coincident", 3, 2, 0, 1),
    Sketcher.Constraint("Vertical", 0),
    Sketcher.Constraint("Horizontal", 1),
    Sketcher.Constraint("Vertical", 2),
    Sketcher.Constraint("Horizontal", 3),
    Sketcher.Constraint("DistanceX", 1, 1, 1, 2, Q("91 mm")),
    Sketcher.Constraint("DistanceY", 0, 2, 0, 1, Q("2 mm")),
    Sketcher.Constraint("DistanceY", -1, 1, 0, 2, Q("66 mm")),
    Sketcher.Constraint("DistanceX", 0, 2, -1, 1, Q("45.5 mm")),
])
pocket7 = doc.addObject("PartDesign::Pocket", "Pocket006")
body.addObject(pocket7)
pocket7.Profile = sketch11
pocket7.Type = "ThroughAll"

# Sketch on XZ plane
sketch12 = doc.addObject("Sketcher::SketchObject", "Sketch011")
body.addObject(sketch12)
sketch12.AttachmentSupport = (doc.XZ_Plane, [""])
sketch12.MapMode = "FlatFace"
sketch12.AttachmentOffset = App.Placement(V(0, 0, 3), App.Rotation())
sketch12.addGeometry([
    Part.LineSegment(V(-43, 49, 0), V(-43, 19, 0)),
    Part.LineSegment(V(-43, 19, 0), V(-31, 19, 0)),
    Part.LineSegment(V(-31, 19, 0), V(-31, 49, 0)),
    Part.LineSegment(V(-31, 49, 0), V(-43, 49, 0)),
], False)
sketch12.addConstraint([
    Sketcher.Constraint("Coincident", 0, 2, 1, 1),
    Sketcher.Constraint("Coincident", 1, 2, 2, 1),
    Sketcher.Constraint("Coincident", 2, 2, 3, 1),
    Sketcher.Constraint("Coincident", 3, 2, 0, 1),
    Sketcher.Constraint("Vertical", 0),
    Sketcher.Constraint("Horizontal", 1),
    Sketcher.Constraint("Vertical", 2),
    Sketcher.Constraint("Horizontal", 3),
    Sketcher.Constraint("DistanceX", 1, 1, 1, 2, Q("11.6 mm")),
    Sketcher.Constraint("DistanceY", 0, 2, 0, 1, Q("30.6 mm")),
    Sketcher.Constraint("DistanceX", 0, 2, -1, 1, Q("43 mm")),
    Sketcher.Constraint("DistanceY", -1, 1, 0, 2, Q("18.7 mm")),
])
pocket8 = doc.addObject("PartDesign::Pocket", "Pocket007")
body.addObject(pocket8)
pocket8.Profile = sketch12
pocket8.Type = "ThroughAll"

# Sketch on XZ plane
sketch13 = doc.addObject("Sketcher::SketchObject", "Sketch012")
body.addObject(sketch13)
sketch13.AttachmentSupport = (doc.XZ_Plane, [""])
sketch13.MapMode = "FlatFace"
sketch13.addGeometry([
    Part.LineSegment(V(-43, 16, 0), V(-43, 52, 0)),
    Part.LineSegment(V(-43, 52, 0), V(-31, 52, 0)),
    Part.LineSegment(V(-31, 52, 0), V(-31, 16, 0)),
    Part.LineSegment(V(-31, 16, 0), V(-43, 16, 0)),
], False)
sketch13.addConstraint([
    Sketcher.Constraint("Coincident", 0, 2, 1, 1),
    Sketcher.Constraint("Coincident", 1, 2, 2, 1),
    Sketcher.Constraint("Coincident", 2, 2, 3, 1),
    Sketcher.Constraint("Coincident", 3, 2, 0, 1),
    Sketcher.Constraint("Vertical", 0),
    Sketcher.Constraint("Horizontal", 1),
    Sketcher.Constraint("Vertical", 2),
    Sketcher.Constraint("Horizontal", 3),
    Sketcher.Constraint("DistanceX", 1, 1, 1, 2, Q("11.6 mm")),
    Sketcher.Constraint("DistanceY", 0, 1, 0, 2, Q("36.6 mm")),
    Sketcher.Constraint("DistanceX", 0, 2, -1, 1, Q("43 mm")),
    Sketcher.Constraint("DistanceY", -1, 1, 0, 2, Q("52.3 mm")),
])
pocket9 = doc.addObject("PartDesign::Pocket", "Pocket008")
body.addObject(pocket9)
pocket9.Profile = sketch13
pocket9.Length = 1.25
pocket9.Reversed = True
body2 = doc.addObject("PartDesign::Body", "Body001")
doc.recompute()

body.Placement = App.Placement(V(0, -66.95, 0), App.Rotation(V(0, 0, 1), 0))
boolean = doc.addObject("PartDesign::Boolean", "Boolean")
body2.addObject(boolean)
boolean.Type = "Fuse"
boolean.addObjects([body])

doc.recompute()
